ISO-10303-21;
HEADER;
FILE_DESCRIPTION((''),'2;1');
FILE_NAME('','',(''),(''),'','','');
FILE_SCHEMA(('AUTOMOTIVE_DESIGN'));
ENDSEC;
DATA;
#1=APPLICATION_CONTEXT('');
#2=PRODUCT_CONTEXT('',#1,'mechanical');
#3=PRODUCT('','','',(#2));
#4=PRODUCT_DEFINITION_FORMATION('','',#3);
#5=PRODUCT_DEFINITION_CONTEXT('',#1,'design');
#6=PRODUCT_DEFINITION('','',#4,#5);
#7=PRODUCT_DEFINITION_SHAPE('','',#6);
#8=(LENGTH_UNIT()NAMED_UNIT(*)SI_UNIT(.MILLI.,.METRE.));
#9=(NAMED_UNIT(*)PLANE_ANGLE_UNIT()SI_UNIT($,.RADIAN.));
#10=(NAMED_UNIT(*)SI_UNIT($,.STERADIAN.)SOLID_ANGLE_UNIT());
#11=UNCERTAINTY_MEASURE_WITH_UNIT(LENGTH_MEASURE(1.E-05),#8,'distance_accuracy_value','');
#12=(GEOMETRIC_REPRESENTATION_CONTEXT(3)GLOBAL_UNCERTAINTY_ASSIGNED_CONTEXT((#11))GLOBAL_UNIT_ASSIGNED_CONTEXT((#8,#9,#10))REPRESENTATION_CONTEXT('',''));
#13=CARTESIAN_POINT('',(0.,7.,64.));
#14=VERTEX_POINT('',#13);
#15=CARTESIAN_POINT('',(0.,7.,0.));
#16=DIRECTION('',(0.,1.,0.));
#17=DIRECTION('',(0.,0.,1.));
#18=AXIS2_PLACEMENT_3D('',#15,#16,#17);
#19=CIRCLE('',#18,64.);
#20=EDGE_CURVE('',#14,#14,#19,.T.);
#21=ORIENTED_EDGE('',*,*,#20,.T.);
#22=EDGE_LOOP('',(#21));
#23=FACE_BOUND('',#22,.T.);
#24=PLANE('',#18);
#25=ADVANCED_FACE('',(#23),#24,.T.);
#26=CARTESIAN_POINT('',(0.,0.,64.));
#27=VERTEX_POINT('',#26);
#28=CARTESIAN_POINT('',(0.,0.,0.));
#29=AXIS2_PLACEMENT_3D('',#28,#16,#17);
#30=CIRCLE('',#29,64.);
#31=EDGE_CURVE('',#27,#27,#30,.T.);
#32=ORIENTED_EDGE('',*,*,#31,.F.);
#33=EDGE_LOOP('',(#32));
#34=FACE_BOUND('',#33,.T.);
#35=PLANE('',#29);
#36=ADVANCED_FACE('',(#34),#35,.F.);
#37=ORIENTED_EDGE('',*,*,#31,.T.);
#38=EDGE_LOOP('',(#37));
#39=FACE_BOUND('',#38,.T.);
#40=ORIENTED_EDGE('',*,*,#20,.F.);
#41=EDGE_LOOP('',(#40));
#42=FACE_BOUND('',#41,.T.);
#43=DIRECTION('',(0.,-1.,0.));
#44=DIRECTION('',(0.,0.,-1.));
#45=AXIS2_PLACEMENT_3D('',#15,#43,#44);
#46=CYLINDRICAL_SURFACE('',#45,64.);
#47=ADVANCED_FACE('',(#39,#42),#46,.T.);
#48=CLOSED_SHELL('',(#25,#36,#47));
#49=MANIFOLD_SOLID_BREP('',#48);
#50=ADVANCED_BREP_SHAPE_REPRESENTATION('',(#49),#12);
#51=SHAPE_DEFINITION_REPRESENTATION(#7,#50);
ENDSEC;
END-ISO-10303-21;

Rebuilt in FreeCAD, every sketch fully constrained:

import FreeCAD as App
import Part
import Sketcher

V = App.Vector
Q = App.Units.Quantity

doc = App.newDocument("Part")
body = doc.addObject("PartDesign::Body", "Body")

# Sketch on XZ plane
sketch1 = body.newObject("Sketcher::SketchObject", "Sketch")
sketch1.AttachmentSupport = (doc.getObject("XZ_Plane"), [""])
sketch1.MapMode = "FlatFace"
sketch1.addGeometry(Part.Circle(V(0, 0, 0), V(0, 0, 1), 64), False)
sketch1.addConstraint(Sketcher.Constraint("Coincident", 0, 3, -1, 1))
sketch1.addConstraint(Sketcher.Constraint("Diameter", 0, Q("128 mm")))
pad1 = body.newObject("PartDesign::Pad", "Pad")
pad1.Profile = sketch1
pad1.Length = 7
pad1.Reversed = True

doc.recompute()
